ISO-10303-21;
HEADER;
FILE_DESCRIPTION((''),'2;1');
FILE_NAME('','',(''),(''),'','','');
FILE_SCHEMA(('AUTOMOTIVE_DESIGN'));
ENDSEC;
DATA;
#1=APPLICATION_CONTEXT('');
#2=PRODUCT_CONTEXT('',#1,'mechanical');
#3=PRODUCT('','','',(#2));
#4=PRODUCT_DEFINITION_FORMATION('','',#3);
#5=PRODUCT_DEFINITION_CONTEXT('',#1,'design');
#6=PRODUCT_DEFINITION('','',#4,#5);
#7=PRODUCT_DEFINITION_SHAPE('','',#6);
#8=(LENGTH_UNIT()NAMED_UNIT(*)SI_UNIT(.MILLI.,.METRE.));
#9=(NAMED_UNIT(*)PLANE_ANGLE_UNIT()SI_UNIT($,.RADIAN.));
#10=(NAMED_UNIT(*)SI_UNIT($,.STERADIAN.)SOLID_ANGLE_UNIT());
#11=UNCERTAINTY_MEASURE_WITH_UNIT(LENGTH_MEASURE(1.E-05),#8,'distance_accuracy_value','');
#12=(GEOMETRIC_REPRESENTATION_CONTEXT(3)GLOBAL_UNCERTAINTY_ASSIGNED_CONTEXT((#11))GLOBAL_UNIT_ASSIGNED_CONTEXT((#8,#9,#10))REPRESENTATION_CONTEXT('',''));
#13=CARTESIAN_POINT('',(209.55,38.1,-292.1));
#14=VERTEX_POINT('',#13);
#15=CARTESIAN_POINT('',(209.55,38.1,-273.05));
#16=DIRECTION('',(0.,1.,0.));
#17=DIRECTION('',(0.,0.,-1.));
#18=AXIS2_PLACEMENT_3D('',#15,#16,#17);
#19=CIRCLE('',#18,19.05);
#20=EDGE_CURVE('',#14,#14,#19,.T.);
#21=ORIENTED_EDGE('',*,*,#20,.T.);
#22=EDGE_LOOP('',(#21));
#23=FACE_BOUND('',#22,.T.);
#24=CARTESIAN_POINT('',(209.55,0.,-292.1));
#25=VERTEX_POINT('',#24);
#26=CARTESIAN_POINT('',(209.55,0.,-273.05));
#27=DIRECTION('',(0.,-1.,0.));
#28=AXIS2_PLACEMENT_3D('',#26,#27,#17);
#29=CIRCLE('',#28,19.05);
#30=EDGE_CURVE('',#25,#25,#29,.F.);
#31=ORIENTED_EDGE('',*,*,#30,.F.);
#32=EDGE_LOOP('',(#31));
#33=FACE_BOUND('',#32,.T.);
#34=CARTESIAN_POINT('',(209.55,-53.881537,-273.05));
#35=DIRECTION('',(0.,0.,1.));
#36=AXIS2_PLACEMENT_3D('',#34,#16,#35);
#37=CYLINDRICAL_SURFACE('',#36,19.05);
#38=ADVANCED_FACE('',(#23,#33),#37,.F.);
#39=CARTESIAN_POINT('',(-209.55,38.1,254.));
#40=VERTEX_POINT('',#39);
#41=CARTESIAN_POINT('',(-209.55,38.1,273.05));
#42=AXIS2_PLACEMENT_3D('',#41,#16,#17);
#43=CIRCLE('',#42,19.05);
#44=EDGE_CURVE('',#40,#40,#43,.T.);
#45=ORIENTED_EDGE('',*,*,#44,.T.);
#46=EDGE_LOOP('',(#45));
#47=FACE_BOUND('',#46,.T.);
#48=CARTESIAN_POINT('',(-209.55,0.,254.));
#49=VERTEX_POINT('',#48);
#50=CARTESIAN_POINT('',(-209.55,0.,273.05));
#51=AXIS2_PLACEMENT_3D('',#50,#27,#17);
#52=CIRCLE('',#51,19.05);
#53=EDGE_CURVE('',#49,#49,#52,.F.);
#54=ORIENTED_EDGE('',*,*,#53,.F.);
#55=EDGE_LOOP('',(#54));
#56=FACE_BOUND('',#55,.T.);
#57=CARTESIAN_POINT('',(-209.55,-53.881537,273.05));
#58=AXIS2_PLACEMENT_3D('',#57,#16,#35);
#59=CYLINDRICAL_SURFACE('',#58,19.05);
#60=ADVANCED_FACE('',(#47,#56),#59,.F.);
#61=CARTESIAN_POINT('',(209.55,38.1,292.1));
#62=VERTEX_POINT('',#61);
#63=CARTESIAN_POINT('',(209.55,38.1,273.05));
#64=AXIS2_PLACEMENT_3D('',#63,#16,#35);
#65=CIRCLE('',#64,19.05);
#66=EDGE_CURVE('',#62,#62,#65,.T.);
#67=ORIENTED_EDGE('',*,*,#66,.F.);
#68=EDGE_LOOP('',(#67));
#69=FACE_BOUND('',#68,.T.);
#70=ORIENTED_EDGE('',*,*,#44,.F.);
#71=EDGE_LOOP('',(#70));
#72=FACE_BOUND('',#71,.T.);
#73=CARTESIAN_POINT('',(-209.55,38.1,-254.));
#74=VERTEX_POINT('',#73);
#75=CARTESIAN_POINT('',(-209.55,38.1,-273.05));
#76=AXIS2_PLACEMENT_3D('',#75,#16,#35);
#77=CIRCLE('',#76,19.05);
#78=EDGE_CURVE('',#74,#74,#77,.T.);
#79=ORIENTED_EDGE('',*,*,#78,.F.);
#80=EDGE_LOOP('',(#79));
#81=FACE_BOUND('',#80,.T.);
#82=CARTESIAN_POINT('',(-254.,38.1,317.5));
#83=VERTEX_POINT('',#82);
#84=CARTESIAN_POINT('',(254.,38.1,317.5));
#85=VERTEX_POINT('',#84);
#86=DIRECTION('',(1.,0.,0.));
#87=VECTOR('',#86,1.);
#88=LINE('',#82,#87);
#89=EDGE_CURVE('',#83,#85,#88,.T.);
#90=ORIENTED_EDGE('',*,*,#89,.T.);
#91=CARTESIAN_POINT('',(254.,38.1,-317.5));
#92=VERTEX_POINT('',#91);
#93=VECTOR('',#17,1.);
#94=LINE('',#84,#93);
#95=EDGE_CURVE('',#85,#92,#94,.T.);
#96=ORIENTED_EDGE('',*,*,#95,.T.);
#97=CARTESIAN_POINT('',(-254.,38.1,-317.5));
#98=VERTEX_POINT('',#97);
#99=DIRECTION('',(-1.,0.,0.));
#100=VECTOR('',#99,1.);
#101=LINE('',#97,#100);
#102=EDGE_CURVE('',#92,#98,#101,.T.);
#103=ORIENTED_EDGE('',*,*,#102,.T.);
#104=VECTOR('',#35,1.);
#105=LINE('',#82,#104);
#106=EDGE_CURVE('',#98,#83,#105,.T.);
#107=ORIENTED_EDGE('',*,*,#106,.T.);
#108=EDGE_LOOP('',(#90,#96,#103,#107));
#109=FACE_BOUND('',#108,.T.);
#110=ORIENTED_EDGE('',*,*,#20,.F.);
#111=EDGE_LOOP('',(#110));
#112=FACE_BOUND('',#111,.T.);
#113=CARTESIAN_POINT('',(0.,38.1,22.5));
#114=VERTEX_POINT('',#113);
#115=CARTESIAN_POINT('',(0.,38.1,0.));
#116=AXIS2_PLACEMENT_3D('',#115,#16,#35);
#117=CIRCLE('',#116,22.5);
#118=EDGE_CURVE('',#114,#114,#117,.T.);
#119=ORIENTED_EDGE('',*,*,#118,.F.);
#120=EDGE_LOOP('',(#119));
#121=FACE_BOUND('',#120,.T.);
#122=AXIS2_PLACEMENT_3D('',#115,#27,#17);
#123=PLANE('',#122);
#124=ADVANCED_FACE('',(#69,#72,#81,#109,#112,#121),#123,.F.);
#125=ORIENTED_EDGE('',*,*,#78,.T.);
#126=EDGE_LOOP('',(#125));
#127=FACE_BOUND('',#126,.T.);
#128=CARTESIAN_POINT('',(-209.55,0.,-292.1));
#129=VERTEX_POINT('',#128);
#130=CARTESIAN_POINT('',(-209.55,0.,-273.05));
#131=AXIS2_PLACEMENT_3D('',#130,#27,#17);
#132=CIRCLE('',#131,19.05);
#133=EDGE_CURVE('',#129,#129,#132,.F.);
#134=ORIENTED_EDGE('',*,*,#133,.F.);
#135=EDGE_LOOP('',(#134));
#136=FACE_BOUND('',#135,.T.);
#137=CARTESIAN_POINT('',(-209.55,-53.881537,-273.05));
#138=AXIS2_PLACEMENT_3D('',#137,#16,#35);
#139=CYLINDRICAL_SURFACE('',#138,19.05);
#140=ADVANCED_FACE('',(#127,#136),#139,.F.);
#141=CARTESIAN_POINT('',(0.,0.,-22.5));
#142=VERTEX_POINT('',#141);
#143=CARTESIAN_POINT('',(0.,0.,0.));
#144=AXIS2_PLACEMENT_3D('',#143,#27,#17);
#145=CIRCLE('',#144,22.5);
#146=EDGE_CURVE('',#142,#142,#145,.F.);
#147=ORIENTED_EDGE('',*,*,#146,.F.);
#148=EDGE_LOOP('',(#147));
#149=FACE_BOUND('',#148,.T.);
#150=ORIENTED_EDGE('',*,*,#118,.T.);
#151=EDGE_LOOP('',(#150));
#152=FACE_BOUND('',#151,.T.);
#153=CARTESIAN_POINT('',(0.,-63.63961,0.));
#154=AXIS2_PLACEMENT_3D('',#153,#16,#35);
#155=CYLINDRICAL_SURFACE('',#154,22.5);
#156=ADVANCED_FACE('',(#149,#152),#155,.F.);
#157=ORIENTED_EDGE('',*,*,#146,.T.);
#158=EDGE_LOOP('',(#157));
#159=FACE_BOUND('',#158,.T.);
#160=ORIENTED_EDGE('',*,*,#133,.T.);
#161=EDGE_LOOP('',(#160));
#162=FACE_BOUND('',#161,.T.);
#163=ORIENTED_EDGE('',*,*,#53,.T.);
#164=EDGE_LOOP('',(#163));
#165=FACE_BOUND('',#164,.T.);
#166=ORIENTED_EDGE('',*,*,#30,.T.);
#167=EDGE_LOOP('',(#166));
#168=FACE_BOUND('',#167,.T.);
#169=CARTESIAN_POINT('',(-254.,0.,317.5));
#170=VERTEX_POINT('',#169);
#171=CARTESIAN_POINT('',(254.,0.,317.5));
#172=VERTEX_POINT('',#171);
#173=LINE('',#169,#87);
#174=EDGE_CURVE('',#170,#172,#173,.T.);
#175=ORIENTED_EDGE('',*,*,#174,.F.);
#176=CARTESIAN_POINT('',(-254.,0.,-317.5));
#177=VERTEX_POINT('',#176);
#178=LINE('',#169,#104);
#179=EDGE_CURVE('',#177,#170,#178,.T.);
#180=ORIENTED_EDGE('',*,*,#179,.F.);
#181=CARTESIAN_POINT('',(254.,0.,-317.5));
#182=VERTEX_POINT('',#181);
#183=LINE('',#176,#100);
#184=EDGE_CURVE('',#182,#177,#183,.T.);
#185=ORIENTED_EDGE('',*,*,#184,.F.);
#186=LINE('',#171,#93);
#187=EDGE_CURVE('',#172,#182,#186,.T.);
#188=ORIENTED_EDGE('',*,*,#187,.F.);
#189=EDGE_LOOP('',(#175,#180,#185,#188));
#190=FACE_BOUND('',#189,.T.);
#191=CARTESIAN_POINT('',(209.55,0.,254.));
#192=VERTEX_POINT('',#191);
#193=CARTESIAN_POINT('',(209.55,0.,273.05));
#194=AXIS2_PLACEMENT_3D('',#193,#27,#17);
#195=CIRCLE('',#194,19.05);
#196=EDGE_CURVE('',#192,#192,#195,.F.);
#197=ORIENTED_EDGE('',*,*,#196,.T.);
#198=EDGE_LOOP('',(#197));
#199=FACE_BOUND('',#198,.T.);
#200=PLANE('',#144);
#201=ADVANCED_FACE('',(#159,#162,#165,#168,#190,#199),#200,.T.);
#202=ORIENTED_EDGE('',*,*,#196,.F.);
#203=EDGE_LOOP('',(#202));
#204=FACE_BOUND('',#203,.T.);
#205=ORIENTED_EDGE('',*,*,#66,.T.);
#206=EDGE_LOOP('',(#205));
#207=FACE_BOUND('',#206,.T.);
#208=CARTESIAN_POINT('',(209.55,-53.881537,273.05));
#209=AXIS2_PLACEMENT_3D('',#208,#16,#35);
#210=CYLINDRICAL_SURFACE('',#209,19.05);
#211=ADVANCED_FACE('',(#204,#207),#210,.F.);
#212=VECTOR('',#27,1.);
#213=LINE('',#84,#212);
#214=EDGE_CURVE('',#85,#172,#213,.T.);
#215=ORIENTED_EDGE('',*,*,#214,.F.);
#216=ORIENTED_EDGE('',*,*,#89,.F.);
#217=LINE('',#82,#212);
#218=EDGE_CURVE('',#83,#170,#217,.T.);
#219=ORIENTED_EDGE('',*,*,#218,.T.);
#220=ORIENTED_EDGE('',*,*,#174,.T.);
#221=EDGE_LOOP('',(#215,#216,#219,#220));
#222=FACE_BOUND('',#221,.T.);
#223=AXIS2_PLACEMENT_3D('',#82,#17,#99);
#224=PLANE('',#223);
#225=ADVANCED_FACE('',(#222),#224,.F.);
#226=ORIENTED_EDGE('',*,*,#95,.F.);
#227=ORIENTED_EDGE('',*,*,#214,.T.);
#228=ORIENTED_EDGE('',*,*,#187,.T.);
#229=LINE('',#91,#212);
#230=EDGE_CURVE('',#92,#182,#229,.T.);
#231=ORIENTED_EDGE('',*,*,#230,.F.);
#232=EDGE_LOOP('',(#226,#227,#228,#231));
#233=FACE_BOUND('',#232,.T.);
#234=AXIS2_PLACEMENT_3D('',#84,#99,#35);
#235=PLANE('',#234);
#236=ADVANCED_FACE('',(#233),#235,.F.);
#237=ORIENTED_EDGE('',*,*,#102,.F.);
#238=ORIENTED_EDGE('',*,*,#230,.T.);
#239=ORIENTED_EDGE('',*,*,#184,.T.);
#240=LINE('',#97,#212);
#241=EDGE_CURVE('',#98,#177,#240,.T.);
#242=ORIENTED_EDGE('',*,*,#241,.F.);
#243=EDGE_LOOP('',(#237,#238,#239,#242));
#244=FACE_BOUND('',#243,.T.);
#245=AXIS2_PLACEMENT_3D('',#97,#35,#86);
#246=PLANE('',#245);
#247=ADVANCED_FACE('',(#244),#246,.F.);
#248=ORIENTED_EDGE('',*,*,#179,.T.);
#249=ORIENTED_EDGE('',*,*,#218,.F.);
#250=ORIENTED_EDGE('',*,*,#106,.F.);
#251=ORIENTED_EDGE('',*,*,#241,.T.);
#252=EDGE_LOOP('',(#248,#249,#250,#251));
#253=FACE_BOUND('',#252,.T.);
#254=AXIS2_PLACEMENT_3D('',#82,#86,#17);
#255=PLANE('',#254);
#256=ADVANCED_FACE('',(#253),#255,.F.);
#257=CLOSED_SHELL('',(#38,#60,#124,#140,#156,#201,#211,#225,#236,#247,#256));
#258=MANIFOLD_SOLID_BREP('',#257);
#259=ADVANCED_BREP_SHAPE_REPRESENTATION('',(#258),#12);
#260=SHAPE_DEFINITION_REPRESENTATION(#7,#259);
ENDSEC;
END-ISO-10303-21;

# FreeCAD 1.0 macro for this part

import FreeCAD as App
import Part
import Sketcher
from FreeCAD import Vector
Q = App.Units.Quantity


def add_polygon(sketch, points):
    """Adds a closed chain of lines whose ends are joined by coincident constraints."""
    first, n = sketch.GeometryCount, len(points)
    for a, b in zip(points, points[1:] + points[:1]):
        sketch.addGeometry(Part.LineSegment(App.Vector(*a, 0), App.Vector(*b, 0)), False)
    for i in range(n):
        sketch.addConstraint(Sketcher.Constraint("Coincident", first + i, 2, first + (i + 1) % n, 1))

doc = App.newDocument("Part")
body = doc.addObject("PartDesign::Body", "Body")

# Sketch on XZ plane
sketch1 = body.newObject("Sketcher::SketchObject", "Sketch")
sketch1.AttachmentSupport = (doc.getObject("XZ_Plane"), [""])
sketch1.MapMode = "FlatFace"
add_polygon(sketch1, [(-254, -317.5), (-254, 317.5), (254, 317.5), (254, -317.5)])  # lines 0-3
sketch1.addConstraint([
    Sketcher.Constraint("Vertical", 0),
    Sketcher.Constraint("Horizontal", 1),
    Sketcher.Constraint("Vertical", 2),
    Sketcher.Constraint("Horizontal", 3),
    Sketcher.Constraint("Symmetric", 0, 2, 2, 2, -1, 1),
    Sketcher.Constraint("DistanceX", 1, 1, 1, 2, Q("20 in")),
    Sketcher.Constraint("DistanceY", 0, 1, 0, 2, Q("25 in")),
])
pad1 = body.newObject("PartDesign::Pad", "Pad")
pad1.Profile = sketch1
pad1.Length = Q("1.5 in")
pad1.Reversed = True

# Sketch on XZ plane
sketch2 = body.newObject("Sketcher::SketchObject", "Sketch001")
sketch2.AttachmentSupport = (doc.getObject("XZ_Plane"), [""])
sketch2.MapMode = "FlatFace"
sketch2.AttachmentOffset = App.Placement(Vector(0, 0, -1.5 * 25.4), App.Rotation())
sketch2.addGeometry([
    Part.Circle(Vector(-209.55, -273.05, 0), Vector(0, 0, 1), 19.05),
    Part.Circle(Vector(209.55, -273.05, 0), Vector(0, 0, 1), 19.05),
    Part.Circle(Vector(209.55, 273.05, 0), Vector(0, 0, 1), 19.05),
    Part.Circle(Vector(-209.55, 273.05, 0), Vector(0, 0, 1), 19.05),
], False)
sketch2.addConstraint([
    Sketcher.Constraint("Equal", 0, 1),
    Sketcher.Constraint("Equal", 1, 2),
    Sketcher.Constraint("Equal", 2, 3),
    Sketcher.Constraint("Symmetric", 0, 3, 2, 3, -1, 1),
    Sketcher.Constraint("Symmetric", 1, 3, 3, 3, -1, 1),
    Sketcher.Constraint("Symmetric", 0, 3, 1, 3, -2),
    Sketcher.Constraint("Diameter", 0, Q("1.5 in")),
    Sketcher.Constraint("DistanceX", 0, 3, 1, 3, Q("16.5 in")),
    Sketcher.Constraint("DistanceY", 1, 3, 2, 3, Q("21.5 in")),
])
pocket1 = body.newObject("PartDesign::Pocket", "Pocket")
pocket1.Profile = sketch2
pocket1.Length = Q("1.5 in")
pocket1.Reversed = True

# Sketch on XZ plane
sketch3 = body.newObject("Sketcher::SketchObject", "Sketch002")
sketch3.AttachmentSupport = (doc.getObject("XZ_Plane"), [""])
sketch3.MapMode = "FlatFace"
sketch3.AttachmentOffset = App.Placement(Vector(0, 0, -1.5 * 25.4), App.Rotation())
sketch3.addGeometry(Part.Circle(Vector(0, 0, 0), Vector(0, 0, 1), 22.5), False)
sketch3.addConstraint([
    Sketcher.Constraint("Coincident", 0, 3, -1, 1),
    Sketcher.Constraint("Diameter", 0, Q("45 mm")),
])
pocket2 = body.newObject("PartDesign::Pocket", "Pocket001")
pocket2.Profile = sketch3
pocket2.Length = Q("1.5 in")
pocket2.Reversed = True

doc.recompute()
